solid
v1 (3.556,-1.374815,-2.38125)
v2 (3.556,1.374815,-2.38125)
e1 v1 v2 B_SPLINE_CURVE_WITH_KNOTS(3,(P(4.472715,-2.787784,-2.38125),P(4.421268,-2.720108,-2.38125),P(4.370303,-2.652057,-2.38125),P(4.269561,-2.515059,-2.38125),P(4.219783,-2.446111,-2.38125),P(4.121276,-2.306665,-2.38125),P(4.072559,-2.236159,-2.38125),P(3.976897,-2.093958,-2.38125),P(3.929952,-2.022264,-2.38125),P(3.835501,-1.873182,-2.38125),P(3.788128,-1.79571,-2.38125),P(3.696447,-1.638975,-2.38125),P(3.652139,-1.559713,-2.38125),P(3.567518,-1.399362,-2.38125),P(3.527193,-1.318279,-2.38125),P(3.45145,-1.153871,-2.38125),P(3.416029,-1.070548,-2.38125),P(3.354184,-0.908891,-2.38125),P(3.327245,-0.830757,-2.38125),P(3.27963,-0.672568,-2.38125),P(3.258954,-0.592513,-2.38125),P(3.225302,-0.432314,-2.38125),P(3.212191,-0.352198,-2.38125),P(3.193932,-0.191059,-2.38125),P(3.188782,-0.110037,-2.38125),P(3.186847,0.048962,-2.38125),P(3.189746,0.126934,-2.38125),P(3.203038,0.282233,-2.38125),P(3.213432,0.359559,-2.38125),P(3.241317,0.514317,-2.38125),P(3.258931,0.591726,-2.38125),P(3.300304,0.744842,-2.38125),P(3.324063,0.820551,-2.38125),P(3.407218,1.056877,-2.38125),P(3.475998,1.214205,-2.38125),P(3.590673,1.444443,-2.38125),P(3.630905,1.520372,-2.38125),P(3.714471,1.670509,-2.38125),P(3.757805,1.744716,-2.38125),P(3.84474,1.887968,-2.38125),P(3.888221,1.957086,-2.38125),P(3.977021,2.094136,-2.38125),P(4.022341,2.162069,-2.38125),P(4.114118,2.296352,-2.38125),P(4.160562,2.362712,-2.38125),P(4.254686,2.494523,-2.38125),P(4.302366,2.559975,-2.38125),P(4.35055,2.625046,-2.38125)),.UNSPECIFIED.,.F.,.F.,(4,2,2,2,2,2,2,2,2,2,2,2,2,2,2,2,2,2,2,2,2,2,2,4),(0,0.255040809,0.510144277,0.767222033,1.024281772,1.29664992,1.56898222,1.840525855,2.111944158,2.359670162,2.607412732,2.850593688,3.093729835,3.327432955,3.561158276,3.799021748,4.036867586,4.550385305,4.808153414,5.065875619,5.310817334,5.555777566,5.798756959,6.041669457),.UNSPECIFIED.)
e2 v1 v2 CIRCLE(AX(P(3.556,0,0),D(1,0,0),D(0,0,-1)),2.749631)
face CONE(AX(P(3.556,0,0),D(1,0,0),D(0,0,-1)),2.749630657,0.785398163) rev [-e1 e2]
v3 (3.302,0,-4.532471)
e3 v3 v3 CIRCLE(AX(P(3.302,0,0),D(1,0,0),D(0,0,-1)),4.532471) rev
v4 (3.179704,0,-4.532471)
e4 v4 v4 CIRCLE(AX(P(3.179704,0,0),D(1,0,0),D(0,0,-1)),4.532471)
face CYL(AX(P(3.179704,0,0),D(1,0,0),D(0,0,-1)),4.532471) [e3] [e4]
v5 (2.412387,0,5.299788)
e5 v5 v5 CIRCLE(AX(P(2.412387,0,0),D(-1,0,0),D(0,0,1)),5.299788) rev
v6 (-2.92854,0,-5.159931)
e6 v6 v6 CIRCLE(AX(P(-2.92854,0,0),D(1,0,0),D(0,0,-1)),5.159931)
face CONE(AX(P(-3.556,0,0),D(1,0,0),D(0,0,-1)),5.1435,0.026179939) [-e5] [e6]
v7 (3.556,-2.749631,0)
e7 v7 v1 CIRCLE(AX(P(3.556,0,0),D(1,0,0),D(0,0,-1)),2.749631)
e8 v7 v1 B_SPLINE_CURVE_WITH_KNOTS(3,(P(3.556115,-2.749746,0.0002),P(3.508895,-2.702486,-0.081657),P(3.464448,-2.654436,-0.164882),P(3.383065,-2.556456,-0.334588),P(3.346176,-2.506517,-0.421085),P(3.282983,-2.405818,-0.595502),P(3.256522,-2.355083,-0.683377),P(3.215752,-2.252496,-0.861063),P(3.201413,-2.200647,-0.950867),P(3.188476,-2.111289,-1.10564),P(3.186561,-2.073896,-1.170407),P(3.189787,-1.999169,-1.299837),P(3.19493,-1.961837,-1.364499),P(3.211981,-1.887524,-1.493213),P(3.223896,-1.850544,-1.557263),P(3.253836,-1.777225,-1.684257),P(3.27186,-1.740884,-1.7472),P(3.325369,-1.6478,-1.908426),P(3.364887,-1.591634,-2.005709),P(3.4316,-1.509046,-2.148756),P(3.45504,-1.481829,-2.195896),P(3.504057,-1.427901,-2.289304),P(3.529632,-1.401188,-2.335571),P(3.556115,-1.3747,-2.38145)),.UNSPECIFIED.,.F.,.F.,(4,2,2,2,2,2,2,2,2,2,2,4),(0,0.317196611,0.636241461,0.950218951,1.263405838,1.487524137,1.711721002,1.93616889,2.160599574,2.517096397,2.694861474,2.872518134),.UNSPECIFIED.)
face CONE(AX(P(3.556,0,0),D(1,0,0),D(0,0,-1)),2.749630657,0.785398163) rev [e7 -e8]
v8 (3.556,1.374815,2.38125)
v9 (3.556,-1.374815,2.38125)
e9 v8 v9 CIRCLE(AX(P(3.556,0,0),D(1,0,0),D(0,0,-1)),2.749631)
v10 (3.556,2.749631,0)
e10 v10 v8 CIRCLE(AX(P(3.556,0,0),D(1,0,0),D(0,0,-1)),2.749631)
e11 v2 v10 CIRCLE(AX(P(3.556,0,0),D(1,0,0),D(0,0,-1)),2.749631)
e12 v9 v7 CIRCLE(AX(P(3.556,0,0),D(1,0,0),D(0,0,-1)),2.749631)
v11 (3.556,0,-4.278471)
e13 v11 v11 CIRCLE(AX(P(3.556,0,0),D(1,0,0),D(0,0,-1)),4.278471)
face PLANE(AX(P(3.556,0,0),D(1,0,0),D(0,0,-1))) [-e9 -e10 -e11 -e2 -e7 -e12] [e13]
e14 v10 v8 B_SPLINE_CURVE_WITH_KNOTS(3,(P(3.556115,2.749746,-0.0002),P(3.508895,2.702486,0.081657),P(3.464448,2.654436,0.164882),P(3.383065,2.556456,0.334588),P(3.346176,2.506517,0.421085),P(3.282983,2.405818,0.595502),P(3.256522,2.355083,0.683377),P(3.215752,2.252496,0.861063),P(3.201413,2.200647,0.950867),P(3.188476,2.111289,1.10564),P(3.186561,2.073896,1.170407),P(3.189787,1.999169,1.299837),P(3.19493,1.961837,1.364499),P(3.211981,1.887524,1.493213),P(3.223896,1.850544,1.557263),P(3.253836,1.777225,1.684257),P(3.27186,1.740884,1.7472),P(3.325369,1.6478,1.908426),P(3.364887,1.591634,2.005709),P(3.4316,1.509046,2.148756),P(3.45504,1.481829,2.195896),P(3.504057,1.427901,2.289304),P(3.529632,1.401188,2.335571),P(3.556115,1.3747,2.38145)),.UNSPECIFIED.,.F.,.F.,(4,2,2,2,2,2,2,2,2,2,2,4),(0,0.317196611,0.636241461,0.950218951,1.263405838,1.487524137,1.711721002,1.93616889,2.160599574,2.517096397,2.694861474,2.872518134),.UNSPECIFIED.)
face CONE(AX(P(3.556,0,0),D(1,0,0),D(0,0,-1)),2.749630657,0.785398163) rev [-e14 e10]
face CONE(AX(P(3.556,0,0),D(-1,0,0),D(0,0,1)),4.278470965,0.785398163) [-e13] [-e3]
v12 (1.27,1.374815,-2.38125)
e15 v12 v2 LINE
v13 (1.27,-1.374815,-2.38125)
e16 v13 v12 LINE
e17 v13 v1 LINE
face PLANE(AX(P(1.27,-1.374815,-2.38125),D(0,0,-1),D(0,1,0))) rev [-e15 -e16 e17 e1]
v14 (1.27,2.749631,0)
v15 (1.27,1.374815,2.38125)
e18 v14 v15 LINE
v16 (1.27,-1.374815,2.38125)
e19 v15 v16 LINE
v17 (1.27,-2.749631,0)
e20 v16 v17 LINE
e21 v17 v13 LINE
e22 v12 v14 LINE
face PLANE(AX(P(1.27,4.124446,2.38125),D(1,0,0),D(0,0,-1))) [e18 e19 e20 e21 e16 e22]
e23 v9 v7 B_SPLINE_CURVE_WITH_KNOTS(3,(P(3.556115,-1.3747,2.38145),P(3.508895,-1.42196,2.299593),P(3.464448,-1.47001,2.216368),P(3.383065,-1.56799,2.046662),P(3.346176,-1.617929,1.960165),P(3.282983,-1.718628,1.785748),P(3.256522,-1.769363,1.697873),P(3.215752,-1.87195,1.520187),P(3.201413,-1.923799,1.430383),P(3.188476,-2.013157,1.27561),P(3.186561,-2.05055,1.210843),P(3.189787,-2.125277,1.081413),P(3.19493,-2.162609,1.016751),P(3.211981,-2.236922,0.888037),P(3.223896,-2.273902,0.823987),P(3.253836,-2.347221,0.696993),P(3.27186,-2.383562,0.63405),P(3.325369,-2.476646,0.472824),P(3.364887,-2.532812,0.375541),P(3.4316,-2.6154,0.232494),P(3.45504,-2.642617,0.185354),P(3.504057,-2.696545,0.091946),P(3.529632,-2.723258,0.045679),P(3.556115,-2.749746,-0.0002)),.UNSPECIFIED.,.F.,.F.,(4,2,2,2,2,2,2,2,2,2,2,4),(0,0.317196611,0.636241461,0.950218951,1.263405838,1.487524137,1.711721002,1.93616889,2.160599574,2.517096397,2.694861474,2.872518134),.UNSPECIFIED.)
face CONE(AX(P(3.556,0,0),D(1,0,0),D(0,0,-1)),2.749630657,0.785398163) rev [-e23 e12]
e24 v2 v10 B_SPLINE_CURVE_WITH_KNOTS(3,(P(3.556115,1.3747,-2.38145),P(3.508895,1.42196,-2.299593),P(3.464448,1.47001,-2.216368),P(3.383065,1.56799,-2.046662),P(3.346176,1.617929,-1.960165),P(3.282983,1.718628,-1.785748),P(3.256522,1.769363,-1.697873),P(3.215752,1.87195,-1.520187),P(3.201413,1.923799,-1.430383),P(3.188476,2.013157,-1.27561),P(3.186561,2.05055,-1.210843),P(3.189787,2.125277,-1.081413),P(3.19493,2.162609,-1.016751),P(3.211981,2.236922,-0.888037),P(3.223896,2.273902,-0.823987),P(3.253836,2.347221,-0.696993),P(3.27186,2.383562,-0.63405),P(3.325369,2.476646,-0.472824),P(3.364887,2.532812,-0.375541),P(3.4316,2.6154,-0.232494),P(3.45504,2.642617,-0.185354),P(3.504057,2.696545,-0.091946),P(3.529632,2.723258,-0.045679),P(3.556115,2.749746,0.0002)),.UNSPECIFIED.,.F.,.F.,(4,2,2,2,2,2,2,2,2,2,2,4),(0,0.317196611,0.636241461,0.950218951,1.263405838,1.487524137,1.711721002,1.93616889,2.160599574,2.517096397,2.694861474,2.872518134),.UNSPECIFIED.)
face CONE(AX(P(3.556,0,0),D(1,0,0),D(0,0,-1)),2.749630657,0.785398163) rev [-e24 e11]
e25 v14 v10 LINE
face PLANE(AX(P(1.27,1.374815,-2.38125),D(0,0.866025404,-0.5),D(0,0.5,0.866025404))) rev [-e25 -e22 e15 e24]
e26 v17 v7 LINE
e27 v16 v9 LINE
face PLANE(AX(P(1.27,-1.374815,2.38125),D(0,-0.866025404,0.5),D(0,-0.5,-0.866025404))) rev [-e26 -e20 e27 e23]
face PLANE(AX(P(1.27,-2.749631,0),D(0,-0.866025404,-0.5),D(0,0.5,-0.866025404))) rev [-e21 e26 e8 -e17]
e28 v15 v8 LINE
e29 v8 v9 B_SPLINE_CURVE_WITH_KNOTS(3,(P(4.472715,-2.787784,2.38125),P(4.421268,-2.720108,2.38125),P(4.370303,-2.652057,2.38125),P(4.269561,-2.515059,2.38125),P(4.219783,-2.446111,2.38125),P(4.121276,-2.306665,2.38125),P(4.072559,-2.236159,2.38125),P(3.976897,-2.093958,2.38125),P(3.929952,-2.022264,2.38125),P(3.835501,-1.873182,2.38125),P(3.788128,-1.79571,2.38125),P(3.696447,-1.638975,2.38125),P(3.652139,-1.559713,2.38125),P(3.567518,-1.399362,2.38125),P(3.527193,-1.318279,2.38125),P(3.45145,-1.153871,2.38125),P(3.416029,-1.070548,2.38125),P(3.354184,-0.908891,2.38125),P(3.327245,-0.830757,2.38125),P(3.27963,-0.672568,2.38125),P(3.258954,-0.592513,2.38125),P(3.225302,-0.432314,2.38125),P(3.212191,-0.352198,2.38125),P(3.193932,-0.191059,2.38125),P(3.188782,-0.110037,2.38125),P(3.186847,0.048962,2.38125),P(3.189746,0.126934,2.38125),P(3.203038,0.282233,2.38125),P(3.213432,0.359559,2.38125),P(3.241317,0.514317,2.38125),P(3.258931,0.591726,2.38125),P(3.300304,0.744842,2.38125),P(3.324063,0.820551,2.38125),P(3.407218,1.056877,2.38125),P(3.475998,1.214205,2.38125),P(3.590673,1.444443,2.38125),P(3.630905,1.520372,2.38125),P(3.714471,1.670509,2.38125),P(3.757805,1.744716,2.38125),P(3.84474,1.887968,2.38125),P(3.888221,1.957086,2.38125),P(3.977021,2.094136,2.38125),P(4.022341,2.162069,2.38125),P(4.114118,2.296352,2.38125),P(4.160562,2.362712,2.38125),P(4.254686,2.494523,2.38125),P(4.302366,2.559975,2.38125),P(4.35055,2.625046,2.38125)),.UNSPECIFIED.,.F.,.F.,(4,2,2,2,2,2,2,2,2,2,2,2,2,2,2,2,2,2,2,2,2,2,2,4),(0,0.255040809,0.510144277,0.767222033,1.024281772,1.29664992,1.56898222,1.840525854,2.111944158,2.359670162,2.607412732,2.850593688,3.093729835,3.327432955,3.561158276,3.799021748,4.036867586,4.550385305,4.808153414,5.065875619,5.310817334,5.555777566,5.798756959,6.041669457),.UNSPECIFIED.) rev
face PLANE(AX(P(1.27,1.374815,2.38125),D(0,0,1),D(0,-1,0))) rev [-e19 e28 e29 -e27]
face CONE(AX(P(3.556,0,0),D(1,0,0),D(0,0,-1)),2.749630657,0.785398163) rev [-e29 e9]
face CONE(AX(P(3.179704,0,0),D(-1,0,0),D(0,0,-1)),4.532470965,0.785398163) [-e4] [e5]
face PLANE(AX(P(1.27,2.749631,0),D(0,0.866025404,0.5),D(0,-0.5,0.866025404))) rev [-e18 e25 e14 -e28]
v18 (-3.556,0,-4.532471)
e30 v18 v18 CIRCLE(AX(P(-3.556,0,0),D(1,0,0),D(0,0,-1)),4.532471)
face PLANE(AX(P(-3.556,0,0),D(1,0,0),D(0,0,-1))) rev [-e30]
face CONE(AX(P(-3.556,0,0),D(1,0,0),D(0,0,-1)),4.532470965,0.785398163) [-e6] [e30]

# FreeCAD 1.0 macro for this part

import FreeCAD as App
import Part
import Sketcher
Q = App.Units.Quantity


def edges_at(feature, points):
    """Names of the edges that pass closest to the given points."""
    edges = feature.Shape.Edges
    near = lambda p: min(range(len(edges)), key=lambda i: edges[i].distToShape(Part.Vertex(*p))[0])
    return sorted({f"Edge{near(p) + 1}" for p in points})

doc = App.newDocument("Part")
body = doc.addObject("PartDesign::Body", "Body")

sketch1 = doc.addObject("Sketcher::SketchObject", "Sketch")
body.addObject(sketch1)
sketch1.AttachmentSupport = (doc.YZ_Plane, [""])
sketch1.MapMode = "FlatFace"
sketch1.AttachmentOffset = App.Placement(App.Vector(0, 0, -0.14 * 25.4), App.Rotation())
sketch1.addGeometry(Part.Circle(App.Vector(0, 0, 0), App.Vector(0, 0, 1), 5.1435), False)
sketch1.addConstraint([
    Sketcher.Constraint("Coincident", 0, 3, -1, 1),
    Sketcher.Constraint("Diameter", 0, Q("0.405 in")),
])
pad1 = doc.addObject("PartDesign::Pad", "Pad")
body.addObject(pad1)
pad1.Profile = sketch1
pad1.Length = Q("0.28 in")
pad1.TaperAngle = 1.5

sketch2 = doc.addObject("Sketcher::SketchObject", "Sketch001")
body.addObject(sketch2)
sketch2.AttachmentSupport = (doc.YZ_Plane, [""])
sketch2.MapMode = "FlatFace"
sketch2.AttachmentOffset = App.Placement(App.Vector(0, 0, -0.14 * 25.4), App.Rotation())
sketch2.addGeometry([
    Part.LineSegment(App.Vector(16.109, 16.109, 0), App.Vector(-16.109, 16.109, 0)),
    Part.LineSegment(App.Vector(-16.109, 16.109, 0), App.Vector(-16.109, -16.109, 0)),
    Part.LineSegment(App.Vector(-16.109, -16.109, 0), App.Vector(16.109, -16.109, 0)),
    Part.LineSegment(App.Vector(16.109, -16.109, 0), App.Vector(16.109, 16.109, 0)),
    Part.Circle(App.Vector(0, 0, 0), App.Vector(0, 0, 1), 4.532471),
], False)
sketch2.addConstraint([
    Sketcher.Constraint("Coincident", 0, 2, 1, 1),
    Sketcher.Constraint("Coincident", 1, 2, 2, 1),
    Sketcher.Constraint("Coincident", 2, 2, 3, 1),
    Sketcher.Constraint("Coincident", 3, 2, 0, 1),
    Sketcher.Constraint("Horizontal", 0),
    Sketcher.Constraint("Vertical", 1),
    Sketcher.Constraint("Horizontal", 2),
    Sketcher.Constraint("Vertical", 3),
    Sketcher.Constraint("Coincident", 4, 3, -1, 1),
    Sketcher.Constraint("Symmetric", 0, 2, 2, 2, -1, 1),
    Sketcher.Constraint("Equal", 2, 1),
    Sketcher.Constraint("Diameter", 4, 9.064942),
    Sketcher.Constraint("DistanceX", 0, 2, 0, 1, 32.218),
])
pocket1 = doc.addObject("PartDesign::Pocket", "Pocket")
body.addObject(pocket1)
pocket1.Profile = sketch2
pocket1.Length = 8.112
pocket1.Reversed = True
pocket1.TaperAngle = 45

sketch3 = doc.addObject("Sketcher::SketchObject", "Sketch002")
body.addObject(sketch3)
sketch3.AttachmentSupport = (doc.YZ_Plane, [""])
sketch3.MapMode = "FlatFace"
sketch3.AttachmentOffset = App.Placement(App.Vector(0, 0, 0.14 * 25.4), App.Rotation())
sketch3.addGeometry([
    Part.LineSegment(App.Vector(7.997, 7.997, 0), App.Vector(-7.997, 7.997, 0)),
    Part.LineSegment(App.Vector(-7.997, 7.997, 0), App.Vector(-7.997, -7.997, 0)),
    Part.LineSegment(App.Vector(-7.997, -7.997, 0), App.Vector(7.997, -7.997, 0)),
    Part.LineSegment(App.Vector(7.997, -7.997, 0), App.Vector(7.997, 7.997, 0)),
    Part.Circle(App.Vector(0, 0, 0), App.Vector(0, 0, 1), 4.532471),
], False)
sketch3.addConstraint([
    Sketcher.Constraint("Coincident", 0, 2, 1, 1),
    Sketcher.Constraint("Coincident", 1, 2, 2, 1),
    Sketcher.Constraint("Coincident", 2, 2, 3, 1),
    Sketcher.Constraint("Coincident", 3, 2, 0, 1),
    Sketcher.Constraint("Horizontal", 0),
    Sketcher.Constraint("Vertical", 1),
    Sketcher.Constraint("Horizontal", 2),
    Sketcher.Constraint("Vertical", 3),
    Sketcher.Constraint("Coincident", 4, 3, -1, 1),
    Sketcher.Constraint("Symmetric", 0, 2, 2, 2, -1, 1),
    Sketcher.Constraint("Equal", 2, 1),
    Sketcher.Constraint("Diameter", 4, 9.064942),
    Sketcher.Constraint("DistanceX", 0, 2, 0, 1, 15.994),
])
pocket2 = doc.addObject("PartDesign::Pocket", "Pocket001")
body.addObject(pocket2)
pocket2.Profile = sketch3
pocket2.Length = 0.376296

sketch4 = doc.addObject("Sketcher::SketchObject", "Sketch003")
body.addObject(sketch4)
sketch4.AttachmentSupport = (doc.YZ_Plane, [""])
sketch4.MapMode = "FlatFace"
sketch4.AttachmentOffset = App.Placement(App.Vector(0, 0, 3.179704), App.Rotation())
sketch4.addGeometry([
    Part.LineSegment(App.Vector(15.72, 15.72, 0), App.Vector(-15.72, 15.72, 0)),
    Part.LineSegment(App.Vector(-15.72, 15.72, 0), App.Vector(-15.72, -15.72, 0)),
    Part.LineSegment(App.Vector(-15.72, -15.72, 0), App.Vector(15.72, -15.72, 0)),
    Part.LineSegment(App.Vector(15.72, -15.72, 0), App.Vector(15.72, 15.72, 0)),
    Part.Circle(App.Vector(0, 0, 0), App.Vector(0, 0, 1), 4.532471),
], False)
sketch4.addConstraint([
    Sketcher.Constraint("Coincident", 0, 2, 1, 1),
    Sketcher.Constraint("Coincident", 1, 2, 2, 1),
    Sketcher.Constraint("Coincident", 2, 2, 3, 1),
    Sketcher.Constraint("Coincident", 3, 2, 0, 1),
    Sketcher.Constraint("Horizontal", 0),
    Sketcher.Constraint("Vertical", 1),
    Sketcher.Constraint("Horizontal", 2),
    Sketcher.Constraint("Vertical", 3),
    Sketcher.Constraint("Coincident", 4, 3, -1, 1),
    Sketcher.Constraint("Symmetric", 0, 2, 2, 2, -1, 1),
    Sketcher.Constraint("Equal", 2, 1),
    Sketcher.Constraint("Diameter", 4, 9.064942),
    Sketcher.Constraint("DistanceX", 0, 2, 0, 1, 31.44),
])
pocket3 = doc.addObject("PartDesign::Pocket", "Pocket002")
body.addObject(pocket3)
pocket3.Profile = sketch4
pocket3.Length = 7.735704
pocket3.TaperAngle = 45

sketch5 = doc.addObject("Sketcher::SketchObject", "Sketch004")
body.addObject(sketch5)
sketch5.AttachmentSupport = (doc.YZ_Plane, [""])
sketch5.MapMode = "FlatFace"
sketch5.AttachmentOffset = App.Placement(App.Vector(0, 0, 0.14 * 25.4), App.Rotation())
sketch5.addGeometry([
    Part.LineSegment(App.Vector(2.749631, 0, 0), App.Vector(1.374815, 2.38125, 0)),
    Part.LineSegment(App.Vector(1.374815, 2.38125, 0), App.Vector(-1.374815, 2.38125, 0)),
    Part.LineSegment(App.Vector(-1.374815, 2.38125, 0), App.Vector(-2.749631, 0, 0)),
    Part.LineSegment(App.Vector(-2.749631, 0, 0), App.Vector(-1.374815, -2.38125, 0)),
    Part.LineSegment(App.Vector(-1.374815, -2.38125, 0), App.Vector(1.374815, -2.38125, 0)),
    Part.LineSegment(App.Vector(1.374815, -2.38125, 0), App.Vector(2.749631, 0, 0)),
], False)
sketch5.addConstraint([
    Sketcher.Constraint("Coincident", 0, 2, 1, 1),
    Sketcher.Constraint("Coincident", 1, 2, 2, 1),
    Sketcher.Constraint("Coincident", 2, 2, 3, 1),
    Sketcher.Constraint("Coincident", 3, 2, 4, 1),
    Sketcher.Constraint("Coincident", 4, 2, 5, 1),
    Sketcher.Constraint("Coincident", 5, 2, 0, 1),
    Sketcher.Constraint("Horizontal", 1),
    Sketcher.Constraint("Horizontal", 4),
    Sketcher.Constraint("Symmetric", 0, 2, 3, 2, -1, 1),
    Sketcher.Constraint("Symmetric", 2, 2, 5, 2, -1, 1),
    Sketcher.Constraint("PointOnObject", 2, 2, -1),
    Sketcher.Constraint("Parallel", 2, 5),
    Sketcher.Constraint("Vertical", 1, 2, 3, 2),
    Sketcher.Constraint("Angle", 0, Q("120 deg")),
    Sketcher.Constraint("DistanceY", -1, 1, 0, 2, Q("0.09375 in")),
    Sketcher.Constraint("DistanceX", 1, 2, 1, 1, 2.749631),
])
pocket4 = doc.addObject("PartDesign::Pocket", "Pocket003")
body.addObject(pocket4)
pocket4.Profile = sketch5
pocket4.Length = Q("0.09 in")
doc.recompute()

chamfer = doc.addObject("PartDesign::Chamfer", "Chamfer")
body.addObject(chamfer)
chamfer.Base = (pocket4, edges_at(pocket4, [(3.556, 0, 4.532)]))
chamfer.Size = Q("0.01 in")

sketch6 = doc.addObject("Sketcher::SketchObject", "Sketch005")
body.addObject(sketch6)
sketch6.AttachmentSupport = (doc.YZ_Plane, [""])
sketch6.MapMode = "FlatFace"
sketch6.AttachmentOffset = App.Placement(App.Vector(0, 0, 0.14 * 25.4), App.Rotation())
sketch6.addGeometry(Part.Circle(App.Vector(0, 0, 0), App.Vector(0, 0, 1), 2.749631), False)
sketch6.addConstraint([
    Sketcher.Constraint("Coincident", 0, 3, -1, 1),
    Sketcher.Constraint("Diameter", 0, 5.499261),
])
pocket5 = doc.addObject("PartDesign::Pocket", "Pocket004")
body.addObject(pocket5)
pocket5.Profile = sketch6
pocket5.Length = Q("0.09 in")
pocket5.TaperAngle = -45

doc.recompute()
